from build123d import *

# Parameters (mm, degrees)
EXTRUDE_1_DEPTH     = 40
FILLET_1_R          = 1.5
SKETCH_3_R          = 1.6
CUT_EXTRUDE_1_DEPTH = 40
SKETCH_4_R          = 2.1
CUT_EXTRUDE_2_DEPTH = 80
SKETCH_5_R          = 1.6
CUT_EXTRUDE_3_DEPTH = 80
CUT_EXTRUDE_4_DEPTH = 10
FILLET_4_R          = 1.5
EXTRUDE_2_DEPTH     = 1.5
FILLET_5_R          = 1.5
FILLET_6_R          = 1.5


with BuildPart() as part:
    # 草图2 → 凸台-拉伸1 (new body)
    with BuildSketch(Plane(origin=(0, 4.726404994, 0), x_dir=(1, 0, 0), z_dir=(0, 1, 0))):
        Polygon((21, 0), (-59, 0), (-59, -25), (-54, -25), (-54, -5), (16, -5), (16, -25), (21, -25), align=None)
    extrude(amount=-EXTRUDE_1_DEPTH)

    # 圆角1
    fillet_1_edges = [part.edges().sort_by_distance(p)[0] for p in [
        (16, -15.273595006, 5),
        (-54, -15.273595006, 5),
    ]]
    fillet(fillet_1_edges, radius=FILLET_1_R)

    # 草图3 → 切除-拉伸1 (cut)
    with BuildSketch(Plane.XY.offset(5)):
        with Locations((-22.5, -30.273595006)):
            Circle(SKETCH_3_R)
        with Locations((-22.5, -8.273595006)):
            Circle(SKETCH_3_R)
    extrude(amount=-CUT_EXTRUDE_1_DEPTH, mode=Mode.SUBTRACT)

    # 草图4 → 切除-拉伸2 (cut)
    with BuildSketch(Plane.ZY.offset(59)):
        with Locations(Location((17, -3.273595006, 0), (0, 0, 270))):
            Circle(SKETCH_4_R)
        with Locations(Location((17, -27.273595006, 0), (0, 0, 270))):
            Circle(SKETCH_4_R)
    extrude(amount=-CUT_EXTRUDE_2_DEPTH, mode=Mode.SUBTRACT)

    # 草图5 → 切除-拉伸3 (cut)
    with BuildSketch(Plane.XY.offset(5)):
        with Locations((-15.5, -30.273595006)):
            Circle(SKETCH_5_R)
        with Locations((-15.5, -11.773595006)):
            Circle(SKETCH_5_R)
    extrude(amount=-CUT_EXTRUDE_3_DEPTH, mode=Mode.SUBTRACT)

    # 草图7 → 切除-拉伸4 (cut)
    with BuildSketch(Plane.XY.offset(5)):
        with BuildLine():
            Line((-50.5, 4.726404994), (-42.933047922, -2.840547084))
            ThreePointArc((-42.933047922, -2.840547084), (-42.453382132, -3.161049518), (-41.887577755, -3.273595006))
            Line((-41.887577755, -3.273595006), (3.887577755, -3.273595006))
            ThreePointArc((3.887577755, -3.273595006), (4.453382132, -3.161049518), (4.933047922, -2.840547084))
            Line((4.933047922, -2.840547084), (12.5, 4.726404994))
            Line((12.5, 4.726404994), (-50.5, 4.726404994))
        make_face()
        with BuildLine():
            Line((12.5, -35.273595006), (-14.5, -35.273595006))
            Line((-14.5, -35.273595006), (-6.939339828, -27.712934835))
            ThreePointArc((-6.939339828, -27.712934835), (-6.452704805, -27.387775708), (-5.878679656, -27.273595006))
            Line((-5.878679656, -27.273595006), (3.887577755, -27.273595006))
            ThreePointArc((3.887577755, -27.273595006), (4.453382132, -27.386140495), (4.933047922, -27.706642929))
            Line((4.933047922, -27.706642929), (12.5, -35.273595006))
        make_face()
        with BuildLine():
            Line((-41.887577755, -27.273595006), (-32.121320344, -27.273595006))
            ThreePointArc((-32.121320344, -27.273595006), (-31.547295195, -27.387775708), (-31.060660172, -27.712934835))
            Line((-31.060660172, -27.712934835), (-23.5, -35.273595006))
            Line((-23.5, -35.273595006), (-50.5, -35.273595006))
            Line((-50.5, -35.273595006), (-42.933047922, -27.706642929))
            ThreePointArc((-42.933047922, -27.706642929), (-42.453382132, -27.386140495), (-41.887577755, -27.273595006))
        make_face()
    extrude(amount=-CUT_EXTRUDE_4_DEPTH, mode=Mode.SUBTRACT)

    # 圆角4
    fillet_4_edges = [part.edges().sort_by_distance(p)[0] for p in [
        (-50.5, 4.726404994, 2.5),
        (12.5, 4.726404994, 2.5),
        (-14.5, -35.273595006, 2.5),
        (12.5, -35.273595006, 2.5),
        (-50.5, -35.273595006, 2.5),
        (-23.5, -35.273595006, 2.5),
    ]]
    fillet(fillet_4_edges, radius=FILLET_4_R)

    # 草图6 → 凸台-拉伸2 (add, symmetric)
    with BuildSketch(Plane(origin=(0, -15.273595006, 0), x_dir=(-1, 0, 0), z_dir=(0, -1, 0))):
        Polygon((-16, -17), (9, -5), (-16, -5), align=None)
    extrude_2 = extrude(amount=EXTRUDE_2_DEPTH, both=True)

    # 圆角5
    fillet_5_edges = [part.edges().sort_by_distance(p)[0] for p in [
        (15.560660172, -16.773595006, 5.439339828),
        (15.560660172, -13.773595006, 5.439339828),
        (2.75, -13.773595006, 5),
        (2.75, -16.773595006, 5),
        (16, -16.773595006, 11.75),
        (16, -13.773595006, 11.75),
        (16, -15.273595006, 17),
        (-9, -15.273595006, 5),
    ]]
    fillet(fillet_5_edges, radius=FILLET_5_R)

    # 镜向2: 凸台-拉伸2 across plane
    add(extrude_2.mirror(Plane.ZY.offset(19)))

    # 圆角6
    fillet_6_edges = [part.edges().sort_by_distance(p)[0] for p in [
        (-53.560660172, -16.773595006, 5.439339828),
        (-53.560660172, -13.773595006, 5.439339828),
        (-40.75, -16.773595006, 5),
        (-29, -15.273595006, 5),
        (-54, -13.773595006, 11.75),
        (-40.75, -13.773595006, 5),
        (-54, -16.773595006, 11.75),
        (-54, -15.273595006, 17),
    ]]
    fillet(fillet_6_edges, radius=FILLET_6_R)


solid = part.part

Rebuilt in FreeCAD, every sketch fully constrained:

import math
import FreeCAD as App
import Part
import Sketcher

V = App.Vector
Q = App.Units.Quantity


def edges_at(feature, points):
    """Names of the edges that pass closest to the given points."""
    edges = feature.Shape.Edges
    near = lambda p: min(range(len(edges)), key=lambda i: edges[i].distToShape(Part.Vertex(*p))[0])
    return sorted({f"Edge{near(p) + 1}" for p in points})


def add_polygon(sketch, points):
    """Adds a closed chain of lines whose ends are joined by coincident constraints."""
    first, n = sketch.GeometryCount, len(points)
    for a, b in zip(points, points[1:] + points[:1]):
        sketch.addGeometry(Part.LineSegment(App.Vector(*a, 0), App.Vector(*b, 0)), False)
    for i in range(n):
        sketch.addConstraint(Sketcher.Constraint("Coincident", first + i, 2, first + (i + 1) % n, 1))

doc = App.newDocument("Part")
body = doc.addObject("PartDesign::Body", "Body")

sketch1 = doc.addObject("Sketcher::SketchObject", "Sketch")
body.addObject(sketch1)
sketch1.AttachmentSupport = (doc.XZ_Plane, [""])
sketch1.MapMode = "FlatFace"
sketch1.AttachmentOffset = App.Placement(V(0, 0, -4.726405), App.Rotation())
add_polygon(sketch1, [(21, 0), (-59, 0), (-59, 25), (-54, 25), (-54, 5), (16, 5), (16, 25), (21, 25)])
sketch1.addConstraint(Sketcher.Constraint("Horizontal", 0))
sketch1.addConstraint(Sketcher.Constraint("Vertical", 1))
sketch1.addConstraint(Sketcher.Constraint("Horizontal", 2))
sketch1.addConstraint(Sketcher.Constraint("Vertical", 3))
sketch1.addConstraint(Sketcher.Constraint("Horizontal", 4))
sketch1.addConstraint(Sketcher.Constraint("Vertical", 5))
sketch1.addConstraint(Sketcher.Constraint("Horizontal", 6))
sketch1.addConstraint(Sketcher.Constraint("Vertical", 7))
sketch1.addConstraint(Sketcher.Constraint("PointOnObject", 0, 2, -1))
sketch1.addConstraint(Sketcher.Constraint("Horizontal", 2, 2, 5, 2))
sketch1.addConstraint(Sketcher.Constraint("Equal", 2, 6))
sketch1.addConstraint(Sketcher.Constraint("DistanceX", 0, 2, 0, 1, Q("80 mm")))
sketch1.addConstraint(Sketcher.Constraint("DistanceX", 2, 1, 2, 2, Q("5 mm")))
sketch1.addConstraint(Sketcher.Constraint("DistanceY", 1, 1, 1, 2, Q("25 mm")))
sketch1.addConstraint(Sketcher.Constraint("DistanceY", 3, 2, 3, 1, Q("20 mm")))
sketch1.addConstraint(Sketcher.Constraint("DistanceX", 0, 2, -1, 1, Q("59 mm")))
pad1 = doc.addObject("PartDesign::Pad", "Pad")
body.addObject(pad1)
pad1.Profile = sketch1
pad1.Length = 40
doc.recompute()

fillet = doc.addObject("PartDesign::Fillet", "Fillet")
body.addObject(fillet)
fillet.Base = (pad1, edges_at(pad1, [(16, -15.274, 5), (-54, -15.274, 5)]))
fillet.Radius = 1.5

sketch2 = doc.addObject("Sketcher::SketchObject", "Sketch001")
body.addObject(sketch2)
sketch2.AttachmentSupport = (doc.XY_Plane, [""])
sketch2.MapMode = "FlatFace"
sketch2.AttachmentOffset = App.Placement(V(0, 0, 5), App.Rotation())
sketch2.addGeometry(Part.Circle(V(-22.5, -30.3, 0), V(0, 0, 1), 1.6), False)
sketch2.addGeometry(Part.Circle(V(-22.5, -8.3, 0), V(0, 0, 1), 1.6), False)
sketch2.addConstraint(Sketcher.Constraint("Equal", 0, 1))
sketch2.addConstraint(Sketcher.Constraint("Vertical", 0, 3, 1, 3))
sketch2.addConstraint(Sketcher.Constraint("Diameter", 0, Q("3.2 mm")))
sketch2.addConstraint(Sketcher.Constraint("DistanceY", 0, 3, 1, 3, Q("22 mm")))
sketch2.addConstraint(Sketcher.Constraint("DistanceX", 0, 3, -1, 1, Q("22.5 mm")))
sketch2.addConstraint(Sketcher.Constraint("DistanceY", 0, 3, -1, 1, Q("30.273595 mm")))
pocket1 = doc.addObject("PartDesign::Pocket", "Pocket")
body.addObject(pocket1)
pocket1.Profile = sketch2
pocket1.Length = 40

sketch3 = doc.addObject("Sketcher::SketchObject", "Sketch002")
body.addObject(sketch3)
sketch3.AttachmentSupport = (doc.YZ_Plane, [""])
sketch3.MapMode = "FlatFace"
sketch3.AttachmentOffset = App.Placement(V(0, 0, -59), App.Rotation())
sketch3.addGeometry(Part.Circle(V(-3.3, 17, 0), V(0, 0, 1), 2.1), False)
sketch3.addGeometry(Part.Circle(V(-27.3, 17, 0), V(0, 0, 1), 2.1), False)
sketch3.addConstraint(Sketcher.Constraint("Equal", 0, 1))
sketch3.addConstraint(Sketcher.Constraint("Horizontal", 0, 3, 1, 3))
sketch3.addConstraint(Sketcher.Constraint("Diameter", 0, Q("4.2 mm")))
sketch3.addConstraint(Sketcher.Constraint("DistanceY", -1, 1, 0, 3, Q("17 mm")))
sketch3.addConstraint(Sketcher.Constraint("DistanceX", 1, 3, 0, 3, Q("24 mm")))
sketch3.addConstraint(Sketcher.Constraint("DistanceX", 0, 3, -1, 1, Q("3.273595 mm")))
pocket2 = doc.addObject("PartDesign::Pocket", "Pocket001")
body.addObject(pocket2)
pocket2.Profile = sketch3
pocket2.Length = 80
pocket2.Reversed = True

sketch4 = doc.addObject("Sketcher::SketchObject", "Sketch003")
body.addObject(sketch4)
sketch4.AttachmentSupport = (doc.XY_Plane, [""])
sketch4.MapMode = "FlatFace"
sketch4.AttachmentOffset = App.Placement(V(0, 0, 5), App.Rotation())
sketch4.addGeometry(Part.Circle(V(-15.5, -30.3, 0), V(0, 0, 1), 1.6), False)
sketch4.addGeometry(Part.Circle(V(-15.5, -11.8, 0), V(0, 0, 1), 1.6), False)
sketch4.addConstraint(Sketcher.Constraint("Equal", 0, 1))
sketch4.addConstraint(Sketcher.Constraint("Vertical", 0, 3, 1, 3))
sketch4.addConstraint(Sketcher.Constraint("Diameter", 0, Q("3.2 mm")))
sketch4.addConstraint(Sketcher.Constraint("DistanceX", 0, 3, -1, 1, Q("15.5 mm")))
sketch4.addConstraint(Sketcher.Constraint("DistanceY", 0, 3, 1, 3, Q("18.5 mm")))
sketch4.addConstraint(Sketcher.Constraint("DistanceY", 0, 3, -1, 1, Q("30.273595 mm")))
pocket3 = doc.addObject("PartDesign::Pocket", "Pocket002")
body.addObject(pocket3)
pocket3.Profile = sketch4
pocket3.Length = 80

sketch5 = doc.addObject("Sketcher::SketchObject", "Sketch004")
body.addObject(sketch5)
sketch5.AttachmentSupport = (doc.XY_Plane, [""])
sketch5.MapMode = "FlatFace"
sketch5.AttachmentOffset = App.Placement(V(0, 0, 5), App.Rotation())
sketch5.addGeometry(Part.LineSegment(V(-50.5, 4.7, 0), V(-42.9, -2.8, 0)), False)
sketch5.addGeometry(Part.ArcOfCircle(Part.Circle(V(-41.9, -1.8, 0), V(0, 0, 1), 1.5), math.radians(-135), math.radians(-90)), False)
sketch5.addGeometry(Part.LineSegment(V(-41.9, -3.3, 0), V(3.9, -3.3, 0)), False)
sketch5.addGeometry(Part.ArcOfCircle(Part.Circle(V(3.9, -1.8, 0), V(0, 0, 1), 1.5), math.radians(-90), math.radians(-45)), False)
sketch5.addGeometry(Part.LineSegment(V(4.9, -2.8, 0), V(12.5, 4.7, 0)), False)
sketch5.addGeometry(Part.LineSegment(V(12.5, 4.7, 0), V(-50.5, 4.7, 0)), False)
sketch5.addGeometry(Part.LineSegment(V(-14.5, -35.3, 0), V(12.5, -35.3, 0)), False)
sketch5.addGeometry(Part.LineSegment(V(12.5, -35.3, 0), V(4.9, -27.7, 0)), False)
sketch5.addGeometry(Part.ArcOfCircle(Part.Circle(V(3.9, -28.8, 0), V(0, 0, 1), 1.5), math.radians(45), math.radians(90)), False)
sketch5.addGeometry(Part.LineSegment(V(3.9, -27.3, 0), V(-5.9, -27.3, 0)), False)
sketch5.addGeometry(Part.ArcOfCircle(Part.Circle(V(-5.9, -28.8, 0), V(0, 0, 1), 1.5), math.radians(90), math.radians(135)), False)
sketch5.addGeometry(Part.LineSegment(V(-6.9, -27.7, 0), V(-14.5, -35.3, 0)), False)
sketch5.addGeometry(Part.LineSegment(V(-32.1, -27.3, 0), V(-41.9, -27.3, 0)), False)
sketch5.addGeometry(Part.ArcOfCircle(Part.Circle(V(-41.9, -28.8, 0), V(0, 0, 1), 1.5), math.radians(90), math.radians(135)), False)
sketch5.addGeometry(Part.LineSegment(V(-42.9, -27.7, 0), V(-50.5, -35.3, 0)), False)
sketch5.addGeometry(Part.LineSegment(V(-50.5, -35.3, 0), V(-23.5, -35.3, 0)), False)
sketch5.addGeometry(Part.LineSegment(V(-23.5, -35.3, 0), V(-31.1, -27.7, 0)), False)
sketch5.addGeometry(Part.ArcOfCircle(Part.Circle(V(-32.1, -28.8, 0), V(0, 0, 1), 1.5), math.radians(45), math.radians(90)), False)
sketch5.addConstraint(Sketcher.Constraint("Tangent", 0, 2, 1, 1))
sketch5.addConstraint(Sketcher.Constraint("Tangent", 1, 2, 2, 1))
sketch5.addConstraint(Sketcher.Constraint("Tangent", 2, 2, 3, 1))
sketch5.addConstraint(Sketcher.Constraint("Tangent", 3, 2, 4, 1))
sketch5.addConstraint(Sketcher.Constraint("Coincident", 4, 2, 5, 1))
sketch5.addConstraint(Sketcher.Constraint("Coincident", 5, 2, 0, 1))
sketch5.addConstraint(Sketcher.Constraint("Coincident", 6, 2, 7, 1))
sketch5.addConstraint(Sketcher.Constraint("Tangent", 7, 2, 8, 1))
sketch5.addConstraint(Sketcher.Constraint("Tangent", 8, 2, 9, 1))
sketch5.addConstraint(Sketcher.Constraint("Tangent", 9, 2, 10, 1))
sketch5.addConstraint(Sketcher.Constraint("Tangent", 10, 2, 11, 1))
sketch5.addConstraint(Sketcher.Constraint("Coincident", 11, 2, 6, 1))
sketch5.addConstraint(Sketcher.Constraint("Tangent", 12, 2, 13, 1))
sketch5.addConstraint(Sketcher.Constraint("Tangent", 13, 2, 14, 1))
sketch5.addConstraint(Sketcher.Constraint("Coincident", 14, 2, 15, 1))
sketch5.addConstraint(Sketcher.Constraint("Coincident", 15, 2, 16, 1))
sketch5.addConstraint(Sketcher.Constraint("Tangent", 16, 2, 17, 1))
sketch5.addConstraint(Sketcher.Constraint("Tangent", 17, 2, 12, 1))
sketch5.addConstraint(Sketcher.Constraint("Horizontal", 2))
sketch5.addConstraint(Sketcher.Constraint("Horizontal", 5))
sketch5.addConstraint(Sketcher.Constraint("Horizontal", 6))
sketch5.addConstraint(Sketcher.Constraint("Horizontal", 9))
sketch5.addConstraint(Sketcher.Constraint("Horizontal", 12))
sketch5.addConstraint(Sketcher.Constraint("Horizontal", 15))
sketch5.addConstraint(Sketcher.Constraint("Equal", 1, 3))
sketch5.addConstraint(Sketcher.Constraint("Equal", 3, 8))
sketch5.addConstraint(Sketcher.Constraint("Equal", 8, 13))
sketch5.addConstraint(Sketcher.Constraint("Equal", 10, 17))
sketch5.addConstraint(Sketcher.Constraint("Perpendicular", 0, 4))
sketch5.addConstraint(Sketcher.Constraint("Perpendicular", 4, 7))
sketch5.addConstraint(Sketcher.Constraint("Perpendicular", 7, 11))
sketch5.addConstraint(Sketcher.Constraint("Parallel", 11, 14))
sketch5.addConstraint(Sketcher.Constraint("Perpendicular", 14, 16))
sketch5.addConstraint(Sketcher.Constraint("Horizontal", 8, 3, 13, 3))
sketch5.addConstraint(Sketcher.Constraint("Horizontal", 0, 2, 3, 2))
sketch5.addConstraint(Sketcher.Constraint("Horizontal", 11, 2, 14, 2))
sketch5.addConstraint(Sketcher.Constraint("Vertical", 3, 3, 8, 3))
sketch5.addConstraint(Sketcher.Constraint("Vertical", 1, 3, 13, 3))
sketch5.addConstraint(Sketcher.Constraint("Vertical", 4, 2, 6, 2))
sketch5.addConstraint(Sketcher.Constraint("Equal", 9, 12))
sketch5.addConstraint(Sketcher.Constraint("Radius", 10, Q("1.5 mm")))
sketch5.addConstraint(Sketcher.Constraint("DistanceX", 5, 2, 5, 1, Q("63 mm")))
sketch5.addConstraint(Sketcher.Constraint("DistanceX", 6, 1, 6, 2, Q("27 mm")))
sketch5.addConstraint(Sketcher.Constraint("DistanceY", 2, 2, 4, 2, Q("8 mm")))
sketch5.addConstraint(Sketcher.Constraint("DistanceY", 6, 2, 2, 2, Q("32 mm")))
sketch5.addConstraint(Sketcher.Constraint("DistanceX", -1, 1, 4, 2, Q("12.5 mm")))
sketch5.addConstraint(Sketcher.Constraint("Radius", 1, Q("1.478518 mm")))
sketch5.addConstraint(Sketcher.Constraint("DistanceY", 1, 3, -1, 1, Q("1.795077 mm")))
pocket4 = doc.addObject("PartDesign::Pocket", "Pocket003")
body.addObject(pocket4)
pocket4.Profile = sketch5
pocket4.Length = 10
doc.recompute()

fillet2 = doc.addObject("PartDesign::Fillet", "Fillet001")
body.addObject(fillet2)
fillet2.Base = (pocket4, edges_at(pocket4, [
    (-50.5, 4.726, 2.5),
    (12.5, 4.726, 2.5),
    (-14.5, -35.274, 2.5),
    (12.5, -35.274, 2.5),
    (-50.5, -35.274, 2.5),
    (-23.5, -35.274, 2.5),
]))
fillet2.Radius = 1.5

sketch6 = doc.addObject("Sketcher::SketchObject", "Sketch005")
body.addObject(sketch6)
sketch6.AttachmentSupport = (doc.XZ_Plane, [""])
sketch6.MapMode = "FlatFace"
sketch6.AttachmentOffset = App.Placement(V(0, 0, 15.273595), App.Rotation())
add_polygon(sketch6, [(16, 17), (-9, 5), (16, 5)])
sketch6.addConstraint(Sketcher.Constraint("Horizontal", 1))
sketch6.addConstraint(Sketcher.Constraint("Vertical", 2))
sketch6.addConstraint(Sketcher.Constraint("DistanceX", 1, 1, 1, 2, Q("25 mm")))
sketch6.addConstraint(Sketcher.Constraint("DistanceY", 2, 1, 2, 2, Q("12 mm")))
sketch6.addConstraint(Sketcher.Constraint("DistanceX", 0, 2, -1, 1, Q("9 mm")))
sketch6.addConstraint(Sketcher.Constraint("DistanceY", -1, 1, 0, 2, Q("5 mm")))
pad2 = doc.addObject("PartDesign::Pad", "Pad001")
body.addObject(pad2)
pad2.Profile = sketch6
pad2.Length = 3
pad2.Midplane = True
doc.recompute()

fillet3 = doc.addObject("PartDesign::Fillet", "Fillet002")
body.addObject(fillet3)
fillet3.Base = (pad2, edges_at(pad2, [
    (15.561, -16.774, 5.439),
    (15.561, -13.774, 5.439),
    (2.75, -13.774, 5),
    (2.75, -16.774, 5),
    (16, -16.774, 11.75),
    (16, -13.774, 11.75),
    (16, -15.274, 17),
    (-9, -15.274, 5),
]))
fillet3.Radius = 1.5
doc.recompute()

datumplane = doc.addObject("PartDesign::Plane", "DatumPlane")
body.addObject(datumplane)
datumplane.AttachmentSupport = (doc.YZ_Plane, [""])
datumplane.MapMode = "FlatFace"
datumplane.AttachmentOffset = App.Placement(V(0, 0, -19), App.Rotation())
mirrored = doc.addObject("PartDesign::Mirrored", "Mirrored")
body.addObject(mirrored)
mirrored.Originals = [pad2]
mirrored.MirrorPlane = (datumplane, [""])
body.Tip = mirrored
doc.recompute()

fillet4 = doc.addObject("PartDesign::Fillet", "Fillet003")
body.addObject(fillet4)
fillet4.Base = (mirrored, edges_at(mirrored, [
    (-53.561, -16.774, 5.439),
    (-53.561, -13.774, 5.439),
    (-40.75, -16.774, 5),
    (-29, -15.274, 5),
    (-54, -13.774, 11.75),
    (-40.75, -13.774, 5),
    (-54, -16.774, 11.75),
    (-54, -15.274, 17),
]))
fillet4.Radius = 1.5

doc.recompute()
